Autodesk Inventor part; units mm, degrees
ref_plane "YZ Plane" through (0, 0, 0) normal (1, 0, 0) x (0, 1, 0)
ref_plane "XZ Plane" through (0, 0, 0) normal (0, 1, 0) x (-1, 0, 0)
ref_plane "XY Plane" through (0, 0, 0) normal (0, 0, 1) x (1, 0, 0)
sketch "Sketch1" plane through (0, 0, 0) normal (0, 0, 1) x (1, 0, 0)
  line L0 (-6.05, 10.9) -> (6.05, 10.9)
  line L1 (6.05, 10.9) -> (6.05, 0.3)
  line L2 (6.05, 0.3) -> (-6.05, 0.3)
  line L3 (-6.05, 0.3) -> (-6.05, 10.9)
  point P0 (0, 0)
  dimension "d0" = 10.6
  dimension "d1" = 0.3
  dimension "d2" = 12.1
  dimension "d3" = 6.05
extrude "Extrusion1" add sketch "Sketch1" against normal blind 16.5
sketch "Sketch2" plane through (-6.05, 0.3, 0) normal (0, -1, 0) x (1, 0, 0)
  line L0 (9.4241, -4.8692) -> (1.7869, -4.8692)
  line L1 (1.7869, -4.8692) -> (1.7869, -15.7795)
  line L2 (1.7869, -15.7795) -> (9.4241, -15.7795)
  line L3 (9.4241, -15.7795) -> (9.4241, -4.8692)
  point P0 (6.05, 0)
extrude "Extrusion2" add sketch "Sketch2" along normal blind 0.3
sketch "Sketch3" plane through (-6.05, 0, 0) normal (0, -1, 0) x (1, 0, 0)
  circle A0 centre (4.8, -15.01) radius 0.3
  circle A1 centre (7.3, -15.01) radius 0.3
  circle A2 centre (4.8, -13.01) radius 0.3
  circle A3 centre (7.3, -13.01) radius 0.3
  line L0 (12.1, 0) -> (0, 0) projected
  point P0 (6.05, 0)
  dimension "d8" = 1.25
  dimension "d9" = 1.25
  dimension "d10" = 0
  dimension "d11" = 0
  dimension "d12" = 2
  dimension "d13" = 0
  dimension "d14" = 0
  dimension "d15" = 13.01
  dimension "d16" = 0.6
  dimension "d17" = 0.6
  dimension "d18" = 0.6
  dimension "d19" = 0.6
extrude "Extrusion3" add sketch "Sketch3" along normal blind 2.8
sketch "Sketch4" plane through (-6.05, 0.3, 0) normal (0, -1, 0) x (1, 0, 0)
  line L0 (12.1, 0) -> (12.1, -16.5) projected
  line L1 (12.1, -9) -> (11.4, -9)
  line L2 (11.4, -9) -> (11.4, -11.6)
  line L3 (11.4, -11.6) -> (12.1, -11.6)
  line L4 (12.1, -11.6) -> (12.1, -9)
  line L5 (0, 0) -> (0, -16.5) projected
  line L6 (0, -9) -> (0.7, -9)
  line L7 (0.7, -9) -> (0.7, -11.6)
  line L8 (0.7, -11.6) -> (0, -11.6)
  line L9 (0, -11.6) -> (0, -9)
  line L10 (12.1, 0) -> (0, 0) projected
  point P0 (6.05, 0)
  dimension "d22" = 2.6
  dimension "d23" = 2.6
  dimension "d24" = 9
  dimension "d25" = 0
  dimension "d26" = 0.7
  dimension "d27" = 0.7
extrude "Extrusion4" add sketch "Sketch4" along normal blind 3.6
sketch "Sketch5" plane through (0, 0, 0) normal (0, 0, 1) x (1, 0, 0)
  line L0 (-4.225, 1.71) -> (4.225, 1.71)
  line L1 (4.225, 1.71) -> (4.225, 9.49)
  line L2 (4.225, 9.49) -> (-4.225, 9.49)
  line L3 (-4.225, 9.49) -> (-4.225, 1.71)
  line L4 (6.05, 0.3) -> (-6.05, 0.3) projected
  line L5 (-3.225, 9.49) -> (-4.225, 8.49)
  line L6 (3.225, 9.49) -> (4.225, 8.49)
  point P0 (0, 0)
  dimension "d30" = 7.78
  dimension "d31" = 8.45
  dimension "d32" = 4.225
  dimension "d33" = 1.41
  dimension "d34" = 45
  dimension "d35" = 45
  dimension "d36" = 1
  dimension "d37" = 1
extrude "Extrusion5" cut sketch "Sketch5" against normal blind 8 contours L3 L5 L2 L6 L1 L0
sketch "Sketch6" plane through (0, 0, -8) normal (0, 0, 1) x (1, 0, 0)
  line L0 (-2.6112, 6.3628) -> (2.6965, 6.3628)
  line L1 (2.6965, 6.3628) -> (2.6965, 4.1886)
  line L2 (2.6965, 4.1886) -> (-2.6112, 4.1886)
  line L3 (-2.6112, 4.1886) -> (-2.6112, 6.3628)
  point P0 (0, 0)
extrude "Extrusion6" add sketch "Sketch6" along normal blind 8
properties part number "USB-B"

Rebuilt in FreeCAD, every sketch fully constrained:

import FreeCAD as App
import Part
import Sketcher
Q = App.Units.Quantity

doc = App.newDocument("Part")
body = doc.addObject("PartDesign::Body", "Body")

# Sketch on XY plane
sketch1 = body.newObject("Sketcher::SketchObject", "Sketch")
sketch1.AttachmentSupport = (doc.getObject("XY_Plane"), [""])
sketch1.MapMode = "FlatFace"
sketch1.addGeometry([
    Part.LineSegment(App.Vector(6.05, 10.9, 0), App.Vector(-6.05, 10.9, 0)),
    Part.LineSegment(App.Vector(-6.05, 10.9, 0), App.Vector(-6.05, 0.3, 0)),
    Part.LineSegment(App.Vector(-6.05, 0.3, 0), App.Vector(6.05, 0.3, 0)),
    Part.LineSegment(App.Vector(6.05, 0.3, 0), App.Vector(6.05, 10.9, 0)),
], False)
sketch1.addConstraint([
    Sketcher.Constraint("Coincident", 0, 2, 1, 1),
    Sketcher.Constraint("Coincident", 1, 2, 2, 1),
    Sketcher.Constraint("Coincident", 2, 2, 3, 1),
    Sketcher.Constraint("Coincident", 3, 2, 0, 1),
    Sketcher.Constraint("Horizontal", 0),
    Sketcher.Constraint("Vertical", 1),
    Sketcher.Constraint("Horizontal", 2),
    Sketcher.Constraint("Vertical", 3),
    Sketcher.Constraint("DistanceX", 0, 2, 0, 1, Q("12.1 mm")),
    Sketcher.Constraint("DistanceY", 1, 2, 1, 1, Q("10.6 mm")),
    Sketcher.Constraint("DistanceY", -1, 1, 1, 2, Q("0.3 mm")),
    Sketcher.Constraint("DistanceX", 0, 2, -1, 1, Q("6.05 mm")),
])
pad1 = body.newObject("PartDesign::Pad", "Pad")
pad1.Profile = sketch1
pad1.Length = 16.5
pad1.Reversed = True

# Sketch on XZ plane
sketch2 = body.newObject("Sketcher::SketchObject", "Sketch001")
sketch2.AttachmentSupport = (doc.getObject("XZ_Plane"), [""])
sketch2.MapMode = "FlatFace"
sketch2.AttachmentOffset = App.Placement(App.Vector(0, 0, -0.3), App.Rotation())
sketch2.addGeometry([
    Part.LineSegment(App.Vector(3.3741, -15.7795, 0), App.Vector(3.3741, -4.8692, 0)),
    Part.LineSegment(App.Vector(3.3741, -4.8692, 0), App.Vector(-4.2631, -4.8692, 0)),
    Part.LineSegment(App.Vector(-4.2631, -4.8692, 0), App.Vector(-4.2631, -15.7795, 0)),
    Part.LineSegment(App.Vector(-4.2631, -15.7795, 0), App.Vector(3.3741, -15.7795, 0)),
], False)
sketch2.addConstraint([
    Sketcher.Constraint("Coincident", 0, 2, 1, 1),
    Sketcher.Constraint("Coincident", 1, 2, 2, 1),
    Sketcher.Constraint("Coincident", 2, 2, 3, 1),
    Sketcher.Constraint("Coincident", 3, 2, 0, 1),
    Sketcher.Constraint("Vertical", 0),
    Sketcher.Constraint("Horizontal", 1),
    Sketcher.Constraint("Vertical", 2),
    Sketcher.Constraint("Horizontal", 3),
    Sketcher.Constraint("DistanceX", 1, 2, 1, 1, Q("7.6372 mm")),
    Sketcher.Constraint("DistanceY", 0, 1, 0, 2, Q("10.9103 mm")),
    Sketcher.Constraint("DistanceX", -1, 1, 0, 2, Q("3.374 mm")),
    Sketcher.Constraint("DistanceY", 0, 2, -1, 1, Q("4.8692 mm")),
])
pad2 = body.newObject("PartDesign::Pad", "Pad001")
pad2.Profile = sketch2
pad2.Length = 0.3

# Sketch on XZ plane
sketch3 = body.newObject("Sketcher::SketchObject", "Sketch002")
sketch3.AttachmentSupport = (doc.getObject("XZ_Plane"), [""])
sketch3.MapMode = "FlatFace"
sketch3.addGeometry([
    Part.Circle(App.Vector(-1.25, -15.01, 0), App.Vector(0, 0, 1), 0.3),
    Part.Circle(App.Vector(1.25, -15.01, 0), App.Vector(0, 0, 1), 0.3),
    Part.Circle(App.Vector(-1.25, -13.01, 0), App.Vector(0, 0, 1), 0.3),
    Part.Circle(App.Vector(1.25, -13.01, 0), App.Vector(0, 0, 1), 0.3),
], False)
sketch3.addConstraint([
    Sketcher.Constraint("Equal", 0, 1),
    Sketcher.Constraint("Equal", 1, 2),
    Sketcher.Constraint("Equal", 2, 3),
    Sketcher.Constraint("Symmetric", 0, 3, 1, 3, -2),
    Sketcher.Constraint("Symmetric", 2, 3, 3, 3, -2),
    Sketcher.Constraint("Vertical", 0, 3, 2, 3),
    Sketcher.Constraint("Diameter", 0, Q("0.6 mm")),
    Sketcher.Constraint("DistanceY", 0, 3, 2, 3, Q("2 mm")),
    Sketcher.Constraint("DistanceX", 0, 3, -1, 1, Q("1.25 mm")),
    Sketcher.Constraint("DistanceY", 2, 3, -1, 1, Q("13.01 mm")),
])
pad3 = body.newObject("PartDesign::Pad", "Pad002")
pad3.Profile = sketch3
pad3.Length = 2.8

# Sketch on XZ plane
sketch4 = body.newObject("Sketcher::SketchObject", "Sketch003")
sketch4.AttachmentSupport = (doc.getObject("XZ_Plane"), [""])
sketch4.MapMode = "FlatFace"
sketch4.AttachmentOffset = App.Placement(App.Vector(0, 0, -0.3), App.Rotation())
sketch4.addGeometry([
    Part.LineSegment(App.Vector(6.05, -11.6, 0), App.Vector(6.05, -9, 0)),  # 0
    Part.LineSegment(App.Vector(6.05, -9, 0), App.Vector(5.35, -9, 0)),  # 1
    Part.LineSegment(App.Vector(5.35, -9, 0), App.Vector(5.35, -11.6, 0)),  # 2
    Part.LineSegment(App.Vector(5.35, -11.6, 0), App.Vector(6.05, -11.6, 0)),  # 3
    Part.LineSegment(App.Vector(-5.35, -9, 0), App.Vector(-6.05, -9, 0)),  # 4
    Part.LineSegment(App.Vector(-6.05, -9, 0), App.Vector(-6.05, -11.6, 0)),  # 5
    Part.LineSegment(App.Vector(-6.05, -11.6, 0), App.Vector(-5.35, -11.6, 0)),  # 6
    Part.LineSegment(App.Vector(-5.35, -11.6, 0), App.Vector(-5.35, -9, 0)),  # 7
], False)
sketch4.addConstraint([
    Sketcher.Constraint("Coincident", 0, 2, 1, 1),
    Sketcher.Constraint("Coincident", 1, 2, 2, 1),
    Sketcher.Constraint("Coincident", 2, 2, 3, 1),
    Sketcher.Constraint("Coincident", 3, 2, 0, 1),
    Sketcher.Constraint("Coincident", 4, 2, 5, 1),
    Sketcher.Constraint("Coincident", 5, 2, 6, 1),
    Sketcher.Constraint("Coincident", 6, 2, 7, 1),
    Sketcher.Constraint("Coincident", 7, 2, 4, 1),
    Sketcher.Constraint("Vertical", 0),
    Sketcher.Constraint("Horizontal", 1),
    Sketcher.Constraint("Vertical", 2),
    Sketcher.Constraint("Horizontal", 3),
    Sketcher.Constraint("Horizontal", 4),
    Sketcher.Constraint("Vertical", 5),
    Sketcher.Constraint("Horizontal", 6),
    Sketcher.Constraint("Vertical", 7),
    Sketcher.Constraint("Symmetric", 0, 2, 4, 2, -2),
    Sketcher.Constraint("Symmetric", 2, 2, 6, 2, -2),
    Sketcher.Constraint("DistanceX", 1, 2, 1, 1, Q("0.7 mm")),
    Sketcher.Constraint("DistanceY", 0, 1, 0, 2, Q("2.6 mm")),
    Sketcher.Constraint("DistanceY", 0, 2, -1, 1, Q("9 mm")),
    Sketcher.Constraint("DistanceX", 4, 2, 1, 2, Q("11.4 mm")),
])
pad4 = body.newObject("PartDesign::Pad", "Pad003")
pad4.Profile = sketch4
pad4.Length = 3.6

# Sketch on XY plane
sketch5 = body.newObject("Sketcher::SketchObject", "Sketch004")
sketch5.AttachmentSupport = (doc.getObject("XY_Plane"), [""])
sketch5.MapMode = "FlatFace"
sketch5.addGeometry([
    Part.LineSegment(App.Vector(-4.225, 8.49, 0), App.Vector(-4.225, 1.71, 0)),  # 0
    Part.LineSegment(App.Vector(-4.225, 1.71, 0), App.Vector(4.225, 1.71, 0)),  # 1
    Part.LineSegment(App.Vector(4.225, 1.71, 0), App.Vector(4.225, 8.49, 0)),  # 2
    Part.LineSegment(App.Vector(4.225, 8.49, 0), App.Vector(3.225, 9.49, 0)),  # 3
    Part.LineSegment(App.Vector(3.225, 9.49, 0), App.Vector(-3.225, 9.49, 0)),  # 4
    Part.LineSegment(App.Vector(-3.225, 9.49, 0), App.Vector(-4.225, 8.49, 0)),  # 5
], False)
sketch5.addConstraint([
    Sketcher.Constraint("Coincident", 0, 2, 1, 1),
    Sketcher.Constraint("Coincident", 1, 2, 2, 1),
    Sketcher.Constraint("Coincident", 2, 2, 3, 1),
    Sketcher.Constraint("Coincident", 3, 2, 4, 1),
    Sketcher.Constraint("Coincident", 4, 2, 5, 1),
    Sketcher.Constraint("Coincident", 5, 2, 0, 1),
    Sketcher.Constraint("Vertical", 0),
    Sketcher.Constraint("Horizontal", 1),
    Sketcher.Constraint("Vertical", 2),
    Sketcher.Constraint("Horizontal", 4),
    Sketcher.Constraint("Symmetric", 2, 2, 5, 2, -2),
    Sketcher.Constraint("Perpendicular", 3, 5),
    Sketcher.Constraint("Equal", 3, 5),
    Sketcher.Constraint("DistanceX", 3, 2, 2, 2, Q("1 mm")),
    Sketcher.Constraint("DistanceX", 1, 1, 1, 2, Q("8.45 mm")),
    Sketcher.Constraint("DistanceY", 1, 2, 3, 2, Q("7.78 mm")),
    Sketcher.Constraint("DistanceY", -1, 1, 0, 2, Q("1.71 mm")),
])
pocket1 = body.newObject("PartDesign::Pocket", "Pocket")
pocket1.Profile = sketch5
pocket1.Length = 8

# Sketch on XY plane
sketch6 = body.newObject("Sketcher::SketchObject", "Sketch005")
sketch6.AttachmentSupport = (doc.getObject("XY_Plane"), [""])
sketch6.MapMode = "FlatFace"
sketch6.AttachmentOffset = App.Placement(App.Vector(0, 0, -8), App.Rotation())
sketch6.addGeometry([
    Part.LineSegment(App.Vector(2.6965, 6.3628, 0), App.Vector(-2.6112, 6.3628, 0)),
    Part.LineSegment(App.Vector(-2.6112, 6.3628, 0), App.Vector(-2.6112, 4.1886, 0)),
    Part.LineSegment(App.Vector(-2.6112, 4.1886, 0), App.Vector(2.6965, 4.1886, 0)),
    Part.LineSegment(App.Vector(2.6965, 4.1886, 0), App.Vector(2.6965, 6.3628, 0)),
], False)
sketch6.addConstraint([
    Sketcher.Constraint("Coincident", 0, 2, 1, 1),
    Sketcher.Constraint("Coincident", 1, 2, 2, 1),
    Sketcher.Constraint("Coincident", 2, 2, 3, 1),
    Sketcher.Constraint("Coincident", 3, 2, 0, 1),
    Sketcher.Constraint("Horizontal", 0),
    Sketcher.Constraint("Vertical", 1),
    Sketcher.Constraint("Horizontal", 2),
    Sketcher.Constraint("Vertical", 3),
    Sketcher.Constraint("DistanceX", 0, 2, 0, 1, Q("5.3077 mm")),
    Sketcher.Constraint("DistanceY", 1, 2, 1, 1, Q("2.1742 mm")),
    Sketcher.Constraint("DistanceX", 0, 2, -1, 1, Q("2.6112 mm")),
    Sketcher.Constraint("DistanceY", -1, 1, 0, 2, Q("6.3628 mm")),
])
pad5 = body.newObject("PartDesign::Pad", "Pad004")
pad5.Profile = sketch6
pad5.Length = 8

doc.recompute()
